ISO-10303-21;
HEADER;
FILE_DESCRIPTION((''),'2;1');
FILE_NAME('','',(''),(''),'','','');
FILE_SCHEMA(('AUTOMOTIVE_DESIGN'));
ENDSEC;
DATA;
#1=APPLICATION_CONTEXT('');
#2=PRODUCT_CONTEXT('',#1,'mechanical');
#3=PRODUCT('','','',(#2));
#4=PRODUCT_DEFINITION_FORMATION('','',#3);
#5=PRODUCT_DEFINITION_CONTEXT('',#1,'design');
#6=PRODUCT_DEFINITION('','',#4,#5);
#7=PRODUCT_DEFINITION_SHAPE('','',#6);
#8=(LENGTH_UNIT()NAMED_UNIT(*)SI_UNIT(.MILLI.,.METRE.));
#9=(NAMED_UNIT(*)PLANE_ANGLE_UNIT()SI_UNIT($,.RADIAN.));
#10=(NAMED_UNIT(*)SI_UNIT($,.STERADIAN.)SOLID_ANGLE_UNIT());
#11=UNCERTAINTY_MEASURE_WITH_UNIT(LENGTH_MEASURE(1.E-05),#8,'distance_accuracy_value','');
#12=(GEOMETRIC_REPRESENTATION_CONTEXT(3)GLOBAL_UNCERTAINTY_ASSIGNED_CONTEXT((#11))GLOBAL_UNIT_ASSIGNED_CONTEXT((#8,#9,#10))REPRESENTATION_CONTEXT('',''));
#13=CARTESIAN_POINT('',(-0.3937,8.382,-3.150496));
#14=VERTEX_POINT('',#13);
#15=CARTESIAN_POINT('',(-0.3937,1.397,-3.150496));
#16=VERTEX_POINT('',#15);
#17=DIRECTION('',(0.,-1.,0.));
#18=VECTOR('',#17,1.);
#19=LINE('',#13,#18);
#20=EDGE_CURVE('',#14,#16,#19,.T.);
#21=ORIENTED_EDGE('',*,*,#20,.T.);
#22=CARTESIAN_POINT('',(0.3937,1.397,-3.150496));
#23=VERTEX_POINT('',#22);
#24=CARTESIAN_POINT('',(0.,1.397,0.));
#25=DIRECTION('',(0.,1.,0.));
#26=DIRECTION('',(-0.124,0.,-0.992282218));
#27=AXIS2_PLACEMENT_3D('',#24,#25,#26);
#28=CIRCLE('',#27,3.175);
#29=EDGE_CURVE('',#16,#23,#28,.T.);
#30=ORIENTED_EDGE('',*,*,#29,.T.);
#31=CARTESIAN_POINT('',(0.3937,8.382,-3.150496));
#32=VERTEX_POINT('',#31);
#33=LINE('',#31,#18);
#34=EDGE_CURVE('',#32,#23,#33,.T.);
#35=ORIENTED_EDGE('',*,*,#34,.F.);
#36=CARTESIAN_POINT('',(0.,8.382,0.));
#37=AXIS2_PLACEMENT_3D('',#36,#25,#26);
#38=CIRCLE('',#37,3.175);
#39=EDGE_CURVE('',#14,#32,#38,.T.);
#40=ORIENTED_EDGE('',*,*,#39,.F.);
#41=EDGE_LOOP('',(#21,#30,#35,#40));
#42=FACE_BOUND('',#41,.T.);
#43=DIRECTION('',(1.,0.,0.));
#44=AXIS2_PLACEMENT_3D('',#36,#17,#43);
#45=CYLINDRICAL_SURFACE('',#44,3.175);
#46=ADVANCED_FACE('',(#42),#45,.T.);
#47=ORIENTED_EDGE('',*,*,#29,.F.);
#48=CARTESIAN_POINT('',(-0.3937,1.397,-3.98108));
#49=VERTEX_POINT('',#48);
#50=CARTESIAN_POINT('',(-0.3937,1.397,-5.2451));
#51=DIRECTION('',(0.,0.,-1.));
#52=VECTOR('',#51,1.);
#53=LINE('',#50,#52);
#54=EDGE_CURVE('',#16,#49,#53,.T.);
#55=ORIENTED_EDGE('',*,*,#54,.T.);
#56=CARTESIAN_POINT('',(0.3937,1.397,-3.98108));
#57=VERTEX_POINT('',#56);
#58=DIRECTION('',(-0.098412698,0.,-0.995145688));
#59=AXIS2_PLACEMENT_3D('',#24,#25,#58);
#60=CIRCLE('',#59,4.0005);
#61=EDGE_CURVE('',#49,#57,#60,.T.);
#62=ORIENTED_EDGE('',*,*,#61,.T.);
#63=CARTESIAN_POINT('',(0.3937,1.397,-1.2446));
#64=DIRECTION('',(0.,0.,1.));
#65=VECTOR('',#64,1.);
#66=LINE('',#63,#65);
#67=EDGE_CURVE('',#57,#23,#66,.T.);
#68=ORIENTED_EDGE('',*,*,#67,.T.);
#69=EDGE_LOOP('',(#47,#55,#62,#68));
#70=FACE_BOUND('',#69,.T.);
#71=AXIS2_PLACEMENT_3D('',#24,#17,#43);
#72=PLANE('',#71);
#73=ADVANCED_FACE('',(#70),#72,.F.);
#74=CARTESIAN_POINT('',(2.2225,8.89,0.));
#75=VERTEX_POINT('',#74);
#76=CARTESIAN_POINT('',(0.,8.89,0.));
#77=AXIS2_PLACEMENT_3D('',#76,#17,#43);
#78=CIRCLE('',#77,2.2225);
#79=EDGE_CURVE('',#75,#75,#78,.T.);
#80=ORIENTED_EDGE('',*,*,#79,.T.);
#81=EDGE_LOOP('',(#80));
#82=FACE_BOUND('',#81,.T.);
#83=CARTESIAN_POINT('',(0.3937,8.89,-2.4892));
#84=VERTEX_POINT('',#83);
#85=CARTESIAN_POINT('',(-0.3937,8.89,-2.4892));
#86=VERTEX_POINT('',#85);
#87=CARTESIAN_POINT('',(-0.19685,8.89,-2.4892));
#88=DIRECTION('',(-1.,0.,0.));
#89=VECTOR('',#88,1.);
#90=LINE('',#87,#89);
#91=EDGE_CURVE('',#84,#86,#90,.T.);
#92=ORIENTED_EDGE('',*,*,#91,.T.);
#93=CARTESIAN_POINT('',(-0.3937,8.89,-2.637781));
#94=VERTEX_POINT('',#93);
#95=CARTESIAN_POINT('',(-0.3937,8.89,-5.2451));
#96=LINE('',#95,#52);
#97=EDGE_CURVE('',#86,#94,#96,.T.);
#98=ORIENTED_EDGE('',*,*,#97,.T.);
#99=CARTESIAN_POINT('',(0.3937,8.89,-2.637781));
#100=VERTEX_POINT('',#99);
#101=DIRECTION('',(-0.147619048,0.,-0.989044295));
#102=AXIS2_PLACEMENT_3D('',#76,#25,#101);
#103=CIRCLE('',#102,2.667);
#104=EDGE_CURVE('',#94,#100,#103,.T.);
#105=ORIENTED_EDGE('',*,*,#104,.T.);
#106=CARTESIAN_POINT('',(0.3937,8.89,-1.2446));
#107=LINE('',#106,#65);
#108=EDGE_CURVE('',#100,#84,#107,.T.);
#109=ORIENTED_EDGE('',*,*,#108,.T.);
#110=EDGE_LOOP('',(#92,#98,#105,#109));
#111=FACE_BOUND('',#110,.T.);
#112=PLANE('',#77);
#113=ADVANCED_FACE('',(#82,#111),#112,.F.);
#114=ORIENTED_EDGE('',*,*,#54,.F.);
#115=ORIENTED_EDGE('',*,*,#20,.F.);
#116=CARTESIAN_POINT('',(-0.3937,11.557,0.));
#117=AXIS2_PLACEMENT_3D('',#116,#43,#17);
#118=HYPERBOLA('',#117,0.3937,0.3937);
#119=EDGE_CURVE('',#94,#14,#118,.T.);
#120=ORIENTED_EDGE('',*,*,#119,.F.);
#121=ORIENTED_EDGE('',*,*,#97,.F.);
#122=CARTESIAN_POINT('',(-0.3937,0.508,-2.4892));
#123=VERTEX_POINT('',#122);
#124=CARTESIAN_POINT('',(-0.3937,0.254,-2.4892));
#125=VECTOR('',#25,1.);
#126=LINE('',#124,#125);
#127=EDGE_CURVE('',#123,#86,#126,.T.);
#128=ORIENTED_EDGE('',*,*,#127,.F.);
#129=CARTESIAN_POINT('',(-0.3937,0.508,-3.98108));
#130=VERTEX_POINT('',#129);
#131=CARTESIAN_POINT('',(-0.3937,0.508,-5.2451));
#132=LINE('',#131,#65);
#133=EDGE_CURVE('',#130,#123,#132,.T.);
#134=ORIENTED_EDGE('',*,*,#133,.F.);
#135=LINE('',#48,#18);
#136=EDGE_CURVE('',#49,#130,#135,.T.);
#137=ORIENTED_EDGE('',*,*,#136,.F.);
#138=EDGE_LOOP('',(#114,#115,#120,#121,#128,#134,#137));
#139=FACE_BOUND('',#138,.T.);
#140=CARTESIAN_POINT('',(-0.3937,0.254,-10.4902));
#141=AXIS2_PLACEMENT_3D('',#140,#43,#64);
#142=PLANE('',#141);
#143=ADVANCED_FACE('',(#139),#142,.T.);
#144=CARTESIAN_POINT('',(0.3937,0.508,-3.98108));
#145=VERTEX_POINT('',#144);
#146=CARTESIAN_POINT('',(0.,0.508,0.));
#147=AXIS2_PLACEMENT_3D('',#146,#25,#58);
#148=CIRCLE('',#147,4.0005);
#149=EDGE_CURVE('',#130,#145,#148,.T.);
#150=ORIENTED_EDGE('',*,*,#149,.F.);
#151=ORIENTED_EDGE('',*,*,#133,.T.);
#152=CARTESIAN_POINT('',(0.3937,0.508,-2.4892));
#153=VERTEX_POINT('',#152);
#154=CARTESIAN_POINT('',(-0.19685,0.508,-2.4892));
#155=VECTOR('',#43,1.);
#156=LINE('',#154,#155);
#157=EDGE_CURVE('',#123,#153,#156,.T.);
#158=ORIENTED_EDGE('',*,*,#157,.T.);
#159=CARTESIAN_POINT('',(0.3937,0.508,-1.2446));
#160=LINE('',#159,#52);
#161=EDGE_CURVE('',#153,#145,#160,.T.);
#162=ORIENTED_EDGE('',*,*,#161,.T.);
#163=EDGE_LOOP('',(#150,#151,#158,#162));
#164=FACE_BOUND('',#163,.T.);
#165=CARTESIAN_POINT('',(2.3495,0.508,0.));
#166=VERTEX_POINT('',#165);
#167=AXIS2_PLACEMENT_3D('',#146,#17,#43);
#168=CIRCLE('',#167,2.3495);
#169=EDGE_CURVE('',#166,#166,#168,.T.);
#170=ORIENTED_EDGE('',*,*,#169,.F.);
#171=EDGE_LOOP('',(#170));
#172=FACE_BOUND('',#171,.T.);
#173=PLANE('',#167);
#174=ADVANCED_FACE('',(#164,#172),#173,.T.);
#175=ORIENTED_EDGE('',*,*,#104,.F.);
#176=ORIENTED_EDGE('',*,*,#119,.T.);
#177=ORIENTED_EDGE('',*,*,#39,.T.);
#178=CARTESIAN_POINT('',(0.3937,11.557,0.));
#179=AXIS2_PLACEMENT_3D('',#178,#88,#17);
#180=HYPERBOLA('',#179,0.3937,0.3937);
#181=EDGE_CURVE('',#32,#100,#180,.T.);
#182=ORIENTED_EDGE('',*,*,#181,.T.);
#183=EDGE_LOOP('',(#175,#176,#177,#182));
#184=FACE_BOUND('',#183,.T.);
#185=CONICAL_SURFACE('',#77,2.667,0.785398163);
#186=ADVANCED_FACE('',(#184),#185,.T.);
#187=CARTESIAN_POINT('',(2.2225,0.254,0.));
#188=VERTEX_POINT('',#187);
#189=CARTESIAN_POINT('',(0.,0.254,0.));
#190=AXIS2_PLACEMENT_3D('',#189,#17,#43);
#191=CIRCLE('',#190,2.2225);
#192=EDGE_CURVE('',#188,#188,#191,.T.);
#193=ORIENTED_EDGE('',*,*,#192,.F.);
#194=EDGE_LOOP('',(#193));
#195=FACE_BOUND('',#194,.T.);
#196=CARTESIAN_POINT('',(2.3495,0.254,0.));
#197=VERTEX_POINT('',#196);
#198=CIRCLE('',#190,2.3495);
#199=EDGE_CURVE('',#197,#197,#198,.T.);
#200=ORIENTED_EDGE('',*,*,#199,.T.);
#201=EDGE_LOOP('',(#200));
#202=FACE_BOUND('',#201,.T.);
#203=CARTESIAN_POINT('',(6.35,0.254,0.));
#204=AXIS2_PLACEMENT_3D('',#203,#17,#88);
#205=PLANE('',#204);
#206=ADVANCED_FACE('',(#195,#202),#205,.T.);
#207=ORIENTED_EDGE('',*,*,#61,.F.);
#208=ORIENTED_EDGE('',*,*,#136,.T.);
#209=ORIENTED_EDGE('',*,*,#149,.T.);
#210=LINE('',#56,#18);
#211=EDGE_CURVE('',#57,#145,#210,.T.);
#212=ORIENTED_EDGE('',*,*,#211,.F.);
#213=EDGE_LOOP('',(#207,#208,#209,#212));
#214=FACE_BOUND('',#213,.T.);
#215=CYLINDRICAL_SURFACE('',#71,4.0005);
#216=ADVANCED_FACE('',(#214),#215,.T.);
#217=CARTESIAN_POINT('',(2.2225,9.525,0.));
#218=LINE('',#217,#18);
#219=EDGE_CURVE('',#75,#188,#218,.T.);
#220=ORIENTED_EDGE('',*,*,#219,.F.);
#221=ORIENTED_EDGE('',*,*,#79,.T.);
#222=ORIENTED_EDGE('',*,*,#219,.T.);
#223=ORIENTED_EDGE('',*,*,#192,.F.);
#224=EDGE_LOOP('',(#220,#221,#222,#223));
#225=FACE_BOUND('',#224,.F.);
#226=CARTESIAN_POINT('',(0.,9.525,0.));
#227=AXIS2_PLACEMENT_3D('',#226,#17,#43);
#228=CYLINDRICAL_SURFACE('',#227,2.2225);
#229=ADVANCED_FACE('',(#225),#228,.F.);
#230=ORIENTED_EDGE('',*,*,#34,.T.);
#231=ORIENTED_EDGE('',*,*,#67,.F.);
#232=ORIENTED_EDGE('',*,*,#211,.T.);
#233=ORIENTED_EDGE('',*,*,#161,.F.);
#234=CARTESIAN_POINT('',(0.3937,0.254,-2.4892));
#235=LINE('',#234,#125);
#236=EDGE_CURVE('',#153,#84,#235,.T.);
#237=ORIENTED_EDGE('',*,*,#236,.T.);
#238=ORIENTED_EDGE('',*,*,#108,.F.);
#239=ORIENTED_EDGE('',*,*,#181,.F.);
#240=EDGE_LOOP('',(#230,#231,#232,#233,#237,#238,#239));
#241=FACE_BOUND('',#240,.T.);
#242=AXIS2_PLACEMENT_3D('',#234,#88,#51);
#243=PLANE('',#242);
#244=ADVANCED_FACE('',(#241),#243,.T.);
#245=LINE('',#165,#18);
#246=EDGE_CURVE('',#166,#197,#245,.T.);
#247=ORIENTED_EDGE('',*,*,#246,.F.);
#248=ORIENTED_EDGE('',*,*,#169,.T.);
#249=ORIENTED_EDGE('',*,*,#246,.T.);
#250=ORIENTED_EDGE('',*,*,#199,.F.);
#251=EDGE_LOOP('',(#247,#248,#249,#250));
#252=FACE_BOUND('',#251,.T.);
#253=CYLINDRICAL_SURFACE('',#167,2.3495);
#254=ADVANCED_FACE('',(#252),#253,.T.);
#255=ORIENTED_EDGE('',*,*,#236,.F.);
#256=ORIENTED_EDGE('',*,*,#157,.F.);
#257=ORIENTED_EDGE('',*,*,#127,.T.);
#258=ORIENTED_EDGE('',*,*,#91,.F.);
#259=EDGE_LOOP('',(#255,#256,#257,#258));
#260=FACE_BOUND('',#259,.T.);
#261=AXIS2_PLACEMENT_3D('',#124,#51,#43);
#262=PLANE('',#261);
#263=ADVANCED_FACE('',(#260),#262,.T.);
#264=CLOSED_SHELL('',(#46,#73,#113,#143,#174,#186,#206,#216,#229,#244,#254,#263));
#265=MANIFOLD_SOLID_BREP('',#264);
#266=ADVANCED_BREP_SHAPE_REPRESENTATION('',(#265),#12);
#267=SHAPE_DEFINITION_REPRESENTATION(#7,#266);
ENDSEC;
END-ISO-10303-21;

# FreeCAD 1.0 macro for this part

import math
import FreeCAD as App
import Part
import Sketcher
Q = App.Units.Quantity

doc = App.newDocument("Part")
body = doc.addObject("PartDesign::Body", "Body")

sketch1 = body.newObject("Sketcher::SketchObject", "Sketch")
sketch1.AttachmentSupport = (doc.getObject("XY_Plane"), [""])
sketch1.MapMode = "FlatFace"
sketch1.addGeometry(Part.ArcOfCircle(Part.Circle(App.Vector(-6.1, 0, 0), App.Vector(0, 0, 1), 0.25), math.radians(90), math.radians(180)), False)
sketch1.addGeometry(Part.LineSegment(App.Vector(-6.35, 0, 0), App.Vector(6.35, 0, 0)), False)
sketch1.addGeometry(Part.ArcOfCircle(Part.Circle(App.Vector(6.1, 0, 0), App.Vector(0, 0, 1), 0.25), math.radians(0), math.radians(90)), False)
sketch1.addGeometry(Part.LineSegment(App.Vector(6.1, 0.25, 0), App.Vector(-6.1, 0.25, 0)), False)
sketch1.addConstraint(Sketcher.Constraint("Coincident", 0, 2, 1, 1))
sketch1.addConstraint(Sketcher.Constraint("Coincident", 1, 2, 2, 1))
sketch1.addConstraint(Sketcher.Constraint("Tangent", 2, 2, 3, 1))
sketch1.addConstraint(Sketcher.Constraint("Tangent", 3, 2, 0, 1))
sketch1.addConstraint(Sketcher.Constraint("Horizontal", 1))
sketch1.addConstraint(Sketcher.Constraint("Horizontal", 3))
sketch1.addConstraint(Sketcher.Constraint("Equal", 0, 2))
sketch1.addConstraint(Sketcher.Constraint("Symmetric", 0, 3, 2, 3, -1, 1))
sketch1.addConstraint(Sketcher.Constraint("PointOnObject", 0, 2, -1))
sketch1.addConstraint(Sketcher.Constraint("Radius", 0, Q("0.01 in")))
sketch1.addConstraint(Sketcher.Constraint("DistanceX", 1, 1, 1, 2, Q("0.5 in")))
pad1 = body.newObject("PartDesign::Pad", "Pad")
pad1.Profile = sketch1
pad1.Length = Q("0.512 in")
pad1.Midplane = True

sketch2 = body.newObject("Sketcher::SketchObject", "Sketch001")
sketch2.AttachmentSupport = (doc.getObject("XY_Plane"), [""])
sketch2.MapMode = "FlatFace"
sketch2.addGeometry(Part.LineSegment(App.Vector(0, 8.89, 0), App.Vector(0, 0.13, 0)), False)
sketch2.addGeometry(Part.LineSegment(App.Vector(0, 0.13, 0), App.Vector(2.35, 0.13, 0)), False)
sketch2.addGeometry(Part.LineSegment(App.Vector(2.35, 0.13, 0), App.Vector(2.35, 0.51, 0)), False)
sketch2.addGeometry(Part.LineSegment(App.Vector(2.35, 0.51, 0), App.Vector(4, 0.51, 0)), False)
sketch2.addGeometry(Part.LineSegment(App.Vector(4, 0.51, 0), App.Vector(4, 1.4, 0)), False)
sketch2.addGeometry(Part.LineSegment(App.Vector(4, 1.4, 0), App.Vector(3.17, 1.4, 0)), False)
sketch2.addGeometry(Part.LineSegment(App.Vector(3.17, 1.4, 0), App.Vector(3.17, 8.38, 0)), False)
sketch2.addGeometry(Part.LineSegment(App.Vector(3.17, 8.38, 0), App.Vector(2.67, 8.89, 0)), False)
sketch2.addGeometry(Part.LineSegment(App.Vector(2.67, 8.89, 0), App.Vector(0, 8.89, 0)), False)
sketch2.addConstraint(Sketcher.Constraint("Coincident", 0, 2, 1, 1))
sketch2.addConstraint(Sketcher.Constraint("Coincident", 1, 2, 2, 1))
sketch2.addConstraint(Sketcher.Constraint("Coincident", 2, 2, 3, 1))
sketch2.addConstraint(Sketcher.Constraint("Coincident", 3, 2, 4, 1))
sketch2.addConstraint(Sketcher.Constraint("Coincident", 4, 2, 5, 1))
sketch2.addConstraint(Sketcher.Constraint("Coincident", 5, 2, 6, 1))
sketch2.addConstraint(Sketcher.Constraint("Coincident", 6, 2, 7, 1))
sketch2.addConstraint(Sketcher.Constraint("Coincident", 7, 2, 8, 1))
sketch2.addConstraint(Sketcher.Constraint("Coincident", 8, 2, 0, 1))
sketch2.addConstraint(Sketcher.Constraint("Vertical", 0))
sketch2.addConstraint(Sketcher.Constraint("Horizontal", 1))
sketch2.addConstraint(Sketcher.Constraint("Vertical", 2))
sketch2.addConstraint(Sketcher.Constraint("Horizontal", 3))
sketch2.addConstraint(Sketcher.Constraint("Vertical", 4))
sketch2.addConstraint(Sketcher.Constraint("Horizontal", 5))
sketch2.addConstraint(Sketcher.Constraint("Vertical", 6))
sketch2.addConstraint(Sketcher.Constraint("Horizontal", 8))
sketch2.addConstraint(Sketcher.Constraint("PointOnObject", 0, 2, -2))
sketch2.addConstraint(Sketcher.Constraint("Angle", 7, Q("135 deg")))
sketch2.addConstraint(Sketcher.Constraint("DistanceX", 3, 1, 3, 2, Q("0.065 in")))
sketch2.addConstraint(Sketcher.Constraint("DistanceX", 8, 2, 8, 1, Q("0.105 in")))
sketch2.addConstraint(Sketcher.Constraint("DistanceY", 0, 2, 0, 1, Q("0.345 in")))
sketch2.addConstraint(Sketcher.Constraint("DistanceY", 2, 1, 2, 2, Q("0.015 in")))
sketch2.addConstraint(Sketcher.Constraint("DistanceY", 4, 1, 4, 2, Q("0.035 in")))
sketch2.addConstraint(Sketcher.Constraint("DistanceY", 6, 1, 6, 2, Q("0.275 in")))
sketch2.addConstraint(Sketcher.Constraint("DistanceY", -1, 1, 2, 2, Q("0.02 in")))
sketch2.addConstraint(Sketcher.Constraint("DistanceX", 1, 1, 1, 2, Q("0.0925 in")))
revolution = body.newObject("PartDesign::Revolution", "Revolution")
revolution.Profile = sketch2
revolution.ReferenceAxis = (sketch2, ["V_Axis"])
revolution.Angle = 360

sketch3 = body.newObject("Sketcher::SketchObject", "Sketch002")
sketch3.AttachmentSupport = (doc.getObject("XZ_Plane"), [""])
sketch3.MapMode = "FlatFace"
sketch3.AttachmentOffset = App.Placement(App.Vector(0, 0, -0.01 * 25.4), App.Rotation())
sketch3.addGeometry(Part.LineSegment(App.Vector(-0.4, -10.5, 0), App.Vector(-0.4, -2.5, 0)), False)
sketch3.addGeometry(Part.LineSegment(App.Vector(-0.4, -2.5, 0), App.Vector(0.4, -2.5, 0)), False)
sketch3.addGeometry(Part.LineSegment(App.Vector(0.4, -2.5, 0), App.Vector(0.4, -10.5, 0)), False)
sketch3.addGeometry(Part.LineSegment(App.Vector(0.4, -10.5, 0), App.Vector(-0.4, -10.5, 0)), False)
sketch3.addConstraint(Sketcher.Constraint("Coincident", 0, 2, 1, 1))
sketch3.addConstraint(Sketcher.Constraint("Coincident", 1, 2, 2, 1))
sketch3.addConstraint(Sketcher.Constraint("Coincident", 2, 2, 3, 1))
sketch3.addConstraint(Sketcher.Constraint("Coincident", 3, 2, 0, 1))
sketch3.addConstraint(Sketcher.Constraint("Vertical", 0))
sketch3.addConstraint(Sketcher.Constraint("Horizontal", 1))
sketch3.addConstraint(Sketcher.Constraint("Vertical", 2))
sketch3.addConstraint(Sketcher.Constraint("Horizontal", 3))
sketch3.addConstraint(Sketcher.Constraint("DistanceX", 1, 1, 1, 2, Q("0.031 in")))
sketch3.addConstraint(Sketcher.Constraint("DistanceY", 0, 1, 0, 2, Q("0.315 in")))
sketch3.addConstraint(Sketcher.Constraint("DistanceY", 0, 2, -1, 1, Q("0.098 in")))
sketch3.addConstraint(Sketcher.Constraint("DistanceX", 0, 2, -1, 1, Q("0.0155 in")))
pocket1 = body.newObject("PartDesign::Pocket", "Pocket")
pocket1.Profile = sketch3
pocket1.Length = Q("0.385 in")

sketch4 = body.newObject("Sketcher::SketchObject", "Sketch003")
sketch4.AttachmentSupport = (doc.getObject("XY_Plane"), [""])
sketch4.MapMode = "FlatFace"
sketch4.addGeometry(Part.LineSegment(App.Vector(0, 9.5, 0), App.Vector(0, 0, 0)), False)
sketch4.addGeometry(Part.LineSegment(App.Vector(0, 0, 0), App.Vector(2.2, 0, 0)), False)
sketch4.addGeometry(Part.LineSegment(App.Vector(2.2, 0, 0), App.Vector(2.2, 9.5, 0)), False)
sketch4.addGeometry(Part.LineSegment(App.Vector(2.2, 9.5, 0), App.Vector(0, 9.5, 0)), False)
sketch4.addConstraint(Sketcher.Constraint("Coincident", 0, 2, 1, 1))
sketch4.addConstraint(Sketcher.Constraint("Coincident", 1, 2, 2, 1))
sketch4.addConstraint(Sketcher.Constraint("Coincident", 2, 2, 3, 1))
sketch4.addConstraint(Sketcher.Constraint("Coincident", 3, 2, 0, 1))
sketch4.addConstraint(Sketcher.Constraint("Vertical", 0))
sketch4.addConstraint(Sketcher.Constraint("Horizontal", 1))
sketch4.addConstraint(Sketcher.Constraint("Vertical", 2))
sketch4.addConstraint(Sketcher.Constraint("Horizontal", 3))
sketch4.addConstraint(Sketcher.Constraint("Coincident", 0, 2, -1, 1))
sketch4.addConstraint(Sketcher.Constraint("DistanceY", 0, 2, 0, 1, Q("0.375 in")))
sketch4.addConstraint(Sketcher.Constraint("DistanceX", 1, 1, 1, 2, Q("0.0875 in")))
groove = body.newObject("PartDesign::Groove", "Groove")
groove.Profile = sketch4
groove.ReferenceAxis = (sketch4, ["V_Axis"])
groove.Angle = 360

sketch5 = body.newObject("Sketcher::SketchObject", "Sketch004")
sketch5.AttachmentSupport = (doc.getObject("XY_Plane"), [""])
sketch5.MapMode = "FlatFace"
sketch5.addGeometry(Part.LineSegment(App.Vector(6.35, 0.25, 0), App.Vector(-6.35, 0.25, 0)), False)
sketch5.addGeometry(Part.LineSegment(App.Vector(-6.35, 0.25, 0), App.Vector(-6.35, 0, 0)), False)
sketch5.addGeometry(Part.LineSegment(App.Vector(-6.35, 0, 0), App.Vector(6.35, 0, 0)), False)
sketch5.addGeometry(Part.LineSegment(App.Vector(6.35, 0, 0), App.Vector(6.35, 0.25, 0)), False)
sketch5.addConstraint(Sketcher.Constraint("Coincident", 0, 2, 1, 1))
sketch5.addConstraint(Sketcher.Constraint("Coincident", 1, 2, 2, 1))
sketch5.addConstraint(Sketcher.Constraint("Coincident", 2, 2, 3, 1))
sketch5.addConstraint(Sketcher.Constraint("Coincident", 3, 2, 0, 1))
sketch5.addConstraint(Sketcher.Constraint("Horizontal", 0))
sketch5.addConstraint(Sketcher.Constraint("Vertical", 1))
sketch5.addConstraint(Sketcher.Constraint("Horizontal", 2))
sketch5.addConstraint(Sketcher.Constraint("Vertical", 3))
sketch5.addConstraint(Sketcher.Constraint("Symmetric", 1, 2, 2, 2, -1, 1))
sketch5.addConstraint(Sketcher.Constraint("DistanceX", 0, 2, 0, 1, Q("0.5 in")))
sketch5.addConstraint(Sketcher.Constraint("DistanceY", 1, 2, 1, 1, Q("0.01 in")))
pocket2 = body.newObject("PartDesign::Pocket", "Pocket001")
pocket2.Profile = sketch5
pocket2.Length = Q("0.512 in")
pocket2.Midplane = True

doc.recompute()
